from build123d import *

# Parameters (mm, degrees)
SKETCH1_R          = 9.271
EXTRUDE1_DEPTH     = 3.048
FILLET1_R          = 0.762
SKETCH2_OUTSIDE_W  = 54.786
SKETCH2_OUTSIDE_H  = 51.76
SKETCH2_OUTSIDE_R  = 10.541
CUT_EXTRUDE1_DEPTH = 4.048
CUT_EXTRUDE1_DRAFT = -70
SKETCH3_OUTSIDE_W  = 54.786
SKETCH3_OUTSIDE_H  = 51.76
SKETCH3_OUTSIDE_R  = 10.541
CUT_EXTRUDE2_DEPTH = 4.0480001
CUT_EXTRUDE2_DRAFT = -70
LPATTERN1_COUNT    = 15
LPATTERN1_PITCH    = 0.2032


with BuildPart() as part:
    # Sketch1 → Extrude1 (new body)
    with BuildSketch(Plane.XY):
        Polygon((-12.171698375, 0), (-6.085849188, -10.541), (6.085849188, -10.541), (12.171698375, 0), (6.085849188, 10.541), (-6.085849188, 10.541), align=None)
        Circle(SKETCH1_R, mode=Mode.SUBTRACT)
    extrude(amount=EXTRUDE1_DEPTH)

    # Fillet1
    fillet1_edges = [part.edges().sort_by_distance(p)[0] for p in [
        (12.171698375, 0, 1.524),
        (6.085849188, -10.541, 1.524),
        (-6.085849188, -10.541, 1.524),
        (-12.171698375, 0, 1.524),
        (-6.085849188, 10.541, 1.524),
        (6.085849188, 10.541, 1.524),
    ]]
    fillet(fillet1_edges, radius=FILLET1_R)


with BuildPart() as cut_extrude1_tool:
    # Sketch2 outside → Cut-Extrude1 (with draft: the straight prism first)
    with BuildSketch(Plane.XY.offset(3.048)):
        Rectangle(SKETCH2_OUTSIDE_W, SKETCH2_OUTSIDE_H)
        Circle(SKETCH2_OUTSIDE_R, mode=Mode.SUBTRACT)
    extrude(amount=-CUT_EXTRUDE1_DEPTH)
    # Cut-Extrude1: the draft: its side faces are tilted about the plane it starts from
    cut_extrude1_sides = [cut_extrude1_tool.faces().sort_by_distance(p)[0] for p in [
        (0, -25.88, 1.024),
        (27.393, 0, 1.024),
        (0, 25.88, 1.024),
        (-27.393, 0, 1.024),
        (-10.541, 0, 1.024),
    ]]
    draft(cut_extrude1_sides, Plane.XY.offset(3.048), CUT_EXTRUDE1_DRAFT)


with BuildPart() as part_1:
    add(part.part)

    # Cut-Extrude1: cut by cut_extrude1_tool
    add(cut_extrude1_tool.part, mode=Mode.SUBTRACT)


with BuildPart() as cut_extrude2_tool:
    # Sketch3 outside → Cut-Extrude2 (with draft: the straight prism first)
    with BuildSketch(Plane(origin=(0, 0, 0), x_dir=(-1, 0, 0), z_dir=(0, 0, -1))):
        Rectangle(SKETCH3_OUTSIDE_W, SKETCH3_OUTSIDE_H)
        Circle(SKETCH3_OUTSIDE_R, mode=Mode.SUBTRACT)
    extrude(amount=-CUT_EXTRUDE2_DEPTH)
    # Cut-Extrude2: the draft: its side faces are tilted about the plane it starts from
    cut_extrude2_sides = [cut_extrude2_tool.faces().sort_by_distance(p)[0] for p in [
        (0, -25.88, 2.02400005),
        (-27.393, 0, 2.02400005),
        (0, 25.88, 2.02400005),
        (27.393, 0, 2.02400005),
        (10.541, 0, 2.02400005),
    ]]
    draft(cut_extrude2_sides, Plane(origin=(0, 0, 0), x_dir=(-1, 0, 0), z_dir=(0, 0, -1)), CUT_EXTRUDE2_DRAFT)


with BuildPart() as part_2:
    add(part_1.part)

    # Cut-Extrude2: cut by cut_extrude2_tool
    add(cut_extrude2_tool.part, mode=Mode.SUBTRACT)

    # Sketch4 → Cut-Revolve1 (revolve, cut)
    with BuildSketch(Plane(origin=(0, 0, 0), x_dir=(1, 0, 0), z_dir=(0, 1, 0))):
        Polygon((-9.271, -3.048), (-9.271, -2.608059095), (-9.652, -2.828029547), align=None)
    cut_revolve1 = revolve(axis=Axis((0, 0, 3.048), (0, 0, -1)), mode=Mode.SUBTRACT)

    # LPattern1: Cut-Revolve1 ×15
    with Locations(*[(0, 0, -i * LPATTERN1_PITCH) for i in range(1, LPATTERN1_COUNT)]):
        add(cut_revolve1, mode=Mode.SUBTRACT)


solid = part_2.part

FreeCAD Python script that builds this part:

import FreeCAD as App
import Part
import Sketcher
Q = App.Units.Quantity


def edges_at(feature, points):
    """Names of the edges that pass closest to the given points."""
    edges = feature.Shape.Edges
    near = lambda p: min(range(len(edges)), key=lambda i: edges[i].distToShape(Part.Vertex(*p))[0])
    return sorted({f"Edge{near(p) + 1}" for p in points})


def faces_at(feature, points):
    """Names of the faces that lie closest to the given points."""
    faces = feature.Shape.Faces
    near = lambda p: min(range(len(faces)), key=lambda i: faces[i].distToShape(Part.Vertex(*p))[0])
    return sorted({f"Face{near(p) + 1}" for p in points})

doc = App.newDocument("Part")
body = doc.addObject("PartDesign::Body", "Body")

sketch1 = doc.addObject("Sketcher::SketchObject", "Sketch")
body.addObject(sketch1)
sketch1.AttachmentSupport = (doc.XY_Plane, [""])
sketch1.MapMode = "FlatFace"
sketch1.addGeometry([
    Part.LineSegment(App.Vector(-12.171698, 0, 0), App.Vector(-6.085849, -10.541, 0)),
    Part.LineSegment(App.Vector(-6.085849, -10.541, 0), App.Vector(6.085849, -10.541, 0)),
    Part.LineSegment(App.Vector(6.085849, -10.541, 0), App.Vector(12.171698, 0, 0)),
    Part.LineSegment(App.Vector(12.171698, 0, 0), App.Vector(6.085849, 10.541, 0)),
    Part.LineSegment(App.Vector(6.085849, 10.541, 0), App.Vector(-6.085849, 10.541, 0)),
    Part.LineSegment(App.Vector(-6.085849, 10.541, 0), App.Vector(-12.171698, 0, 0)),
    Part.Circle(App.Vector(0, 0, 0), App.Vector(0, 0, 1), 9.271),
], False)
sketch1.addConstraint([
    Sketcher.Constraint("Coincident", 0, 2, 1, 1),
    Sketcher.Constraint("Coincident", 1, 2, 2, 1),
    Sketcher.Constraint("Coincident", 2, 2, 3, 1),
    Sketcher.Constraint("Coincident", 3, 2, 4, 1),
    Sketcher.Constraint("Coincident", 4, 2, 5, 1),
    Sketcher.Constraint("Coincident", 5, 2, 0, 1),
    Sketcher.Constraint("Horizontal", 1),
    Sketcher.Constraint("Horizontal", 4),
    Sketcher.Constraint("Coincident", 6, 3, -1, 1),
    Sketcher.Constraint("Symmetric", 0, 2, 3, 2, -1, 1),
    Sketcher.Constraint("Symmetric", 2, 2, 5, 2, -1, 1),
    Sketcher.Constraint("PointOnObject", 2, 2, -1),
    Sketcher.Constraint("Parallel", 2, 5),
    Sketcher.Constraint("Vertical", 1, 2, 3, 2),
    Sketcher.Constraint("Diameter", 6, Q("0.73 in")),
    Sketcher.Constraint("Angle", 0, Q("-60 deg")),
    Sketcher.Constraint("DistanceY", 1, 2, 3, 2, Q("0.83 in")),
    Sketcher.Constraint("DistanceX", 1, 1, 1, 2, 12.171698),
])
pad1 = doc.addObject("PartDesign::Pad", "Pad")
body.addObject(pad1)
pad1.Profile = sketch1
pad1.Length = Q("0.12 in")
doc.recompute()

fillet = doc.addObject("PartDesign::Fillet", "Fillet")
body.addObject(fillet)
fillet.Base = (pad1, edges_at(pad1, [
    (12.172, 0, 1.524),
    (6.086, -10.541, 1.524),
    (-6.086, -10.541, 1.524),
    (-12.172, 0, 1.524),
    (-6.086, 10.541, 1.524),
    (6.086, 10.541, 1.524),
]))
fillet.Radius = Q("0.03 in")
body2 = doc.addObject("PartDesign::Body", "Body001")

sketch2 = doc.addObject("Sketcher::SketchObject", "Sketch001")
body2.addObject(sketch2)
sketch2.AttachmentSupport = (doc.getObject("XY_Plane001"), [""])
sketch2.MapMode = "FlatFace"
sketch2.AttachmentOffset = App.Placement(App.Vector(0, 0, 0.12 * 25.4), App.Rotation())
sketch2.addGeometry([
    Part.LineSegment(App.Vector(-27.393, 25.88, 0), App.Vector(-27.393, -25.88, 0)),
    Part.LineSegment(App.Vector(-27.393, -25.88, 0), App.Vector(27.393, -25.88, 0)),
    Part.LineSegment(App.Vector(27.393, -25.88, 0), App.Vector(27.393, 25.88, 0)),
    Part.LineSegment(App.Vector(27.393, 25.88, 0), App.Vector(-27.393, 25.88, 0)),
    Part.Circle(App.Vector(0, 0, 0), App.Vector(0, 0, 1), 10.541),
], False)
sketch2.addConstraint([
    Sketcher.Constraint("Coincident", 0, 2, 1, 1),
    Sketcher.Constraint("Coincident", 1, 2, 2, 1),
    Sketcher.Constraint("Coincident", 2, 2, 3, 1),
    Sketcher.Constraint("Coincident", 3, 2, 0, 1),
    Sketcher.Constraint("Vertical", 0),
    Sketcher.Constraint("Horizontal", 1),
    Sketcher.Constraint("Vertical", 2),
    Sketcher.Constraint("Horizontal", 3),
    Sketcher.Constraint("Coincident", 4, 3, -1, 1),
    Sketcher.Constraint("Symmetric", 0, 2, 2, 2, -1, 1),
    Sketcher.Constraint("Diameter", 4, Q("0.83 in")),
    Sketcher.Constraint("DistanceX", 1, 1, 1, 2, 54.786),
    Sketcher.Constraint("DistanceY", 0, 2, 0, 1, 51.76),
])
pad2 = doc.addObject("PartDesign::Pad", "Pad001")
body2.addObject(pad2)
pad2.Profile = sketch2
pad2.Length = 4.048
pad2.Reversed = True
doc.recompute()

datumplane = doc.addObject("PartDesign::Plane", "DatumPlane")
body2.addObject(datumplane)
datumplane.AttachmentSupport = (doc.getObject("XY_Plane001"), [""])
datumplane.MapMode = "FlatFace"
datumplane.AttachmentOffset = App.Placement(App.Vector(0, 0, 0.12 * 25.4), App.Rotation())
draft = doc.addObject("PartDesign::Draft", "Draft")
body2.addObject(draft)
draft.Base = (pad2, faces_at(pad2, [
    (0, -25.88, 1.024),
    (27.393, 0, 1.024),
    (0, 25.88, 1.024),
    (-27.393, 0, 1.024),
    (-10.541, 0, 1.024),
]))
draft.NeutralPlane = (datumplane, [""])
draft.Angle = 70
draft.Reversed = True
doc.recompute()

boolean = doc.addObject("PartDesign::Boolean", "Boolean")
body.addObject(boolean)
boolean.Type = "Cut"
boolean.addObjects([body2])
body3 = doc.addObject("PartDesign::Body", "Body002")

sketch3 = doc.addObject("Sketcher::SketchObject", "Sketch002")
body3.addObject(sketch3)
sketch3.AttachmentSupport = (doc.getObject("XY_Plane002"), [""])
sketch3.MapMode = "FlatFace"
sketch3.addGeometry([
    Part.LineSegment(App.Vector(27.393, 25.88, 0), App.Vector(27.393, -25.88, 0)),
    Part.LineSegment(App.Vector(27.393, -25.88, 0), App.Vector(-27.393, -25.88, 0)),
    Part.LineSegment(App.Vector(-27.393, -25.88, 0), App.Vector(-27.393, 25.88, 0)),
    Part.LineSegment(App.Vector(-27.393, 25.88, 0), App.Vector(27.393, 25.88, 0)),
    Part.Circle(App.Vector(0, 0, 0), App.Vector(0, 0, 1), 10.541),
], False)
sketch3.addConstraint([
    Sketcher.Constraint("Coincident", 0, 2, 1, 1),
    Sketcher.Constraint("Coincident", 1, 2, 2, 1),
    Sketcher.Constraint("Coincident", 2, 2, 3, 1),
    Sketcher.Constraint("Coincident", 3, 2, 0, 1),
    Sketcher.Constraint("Vertical", 0),
    Sketcher.Constraint("Horizontal", 1),
    Sketcher.Constraint("Vertical", 2),
    Sketcher.Constraint("Horizontal", 3),
    Sketcher.Constraint("Coincident", 4, 3, -1, 1),
    Sketcher.Constraint("Symmetric", 0, 2, 2, 2, -1, 1),
    Sketcher.Constraint("Diameter", 4, Q("0.83 in")),
    Sketcher.Constraint("DistanceX", 1, 2, 1, 1, 54.786),
    Sketcher.Constraint("DistanceY", 0, 2, 0, 1, 51.76),
])
pad3 = doc.addObject("PartDesign::Pad", "Pad002")
body3.addObject(pad3)
pad3.Profile = sketch3
pad3.Length = 4.048
doc.recompute()

draft2 = doc.addObject("PartDesign::Draft", "Draft001")
body3.addObject(draft2)
draft2.Base = (pad3, faces_at(pad3, [
    (0, -25.88, 2.024),
    (-27.393, 0, 2.024),
    (0, 25.88, 2.024),
    (27.393, 0, 2.024),
    (10.541, 0, 2.024),
]))
draft2.NeutralPlane = (doc.getObject("XY_Plane002"), [""])
draft2.Angle = 70
draft2.Reversed = False
doc.recompute()

boolean2 = doc.addObject("PartDesign::Boolean", "Boolean001")
body.addObject(boolean2)
boolean2.Type = "Cut"
boolean2.addObjects([body3])

sketch4 = doc.addObject("Sketcher::SketchObject", "Sketch003")
body.addObject(sketch4)
sketch4.AttachmentSupport = (doc.XZ_Plane, [""])
sketch4.MapMode = "FlatFace"
sketch4.addGeometry([
    Part.LineSegment(App.Vector(-9.271, 3.048, 0), App.Vector(-9.271, 2.608059, 0)),
    Part.LineSegment(App.Vector(-9.271, 2.608059, 0), App.Vector(-9.652, 2.82803, 0)),
    Part.LineSegment(App.Vector(-9.652, 2.82803, 0), App.Vector(-9.271, 3.048, 0)),
], False)
sketch4.addConstraint([
    Sketcher.Constraint("Coincident", 0, 2, 1, 1),
    Sketcher.Constraint("Coincident", 1, 2, 2, 1),
    Sketcher.Constraint("Coincident", 2, 2, 0, 1),
    Sketcher.Constraint("Vertical", 0),
    Sketcher.Constraint("Equal", 1, 2),
    Sketcher.Constraint("Angle", 1, Q("150 deg")),
    Sketcher.Constraint("DistanceX", 1, 2, -1, 1, Q("0.38 in")),
    Sketcher.Constraint("DistanceY", -1, 1, 2, 2, Q("0.12 in")),
    Sketcher.Constraint("DistanceX", 0, 2, -1, 1, Q("0.365 in")),
])
groove = doc.addObject("PartDesign::Groove", "Groove")
body.addObject(groove)
groove.Profile = sketch4
groove.ReferenceAxis = (sketch4, ["V_Axis"])
groove.Angle = 360
doc.recompute()

linearpattern = doc.addObject("PartDesign::LinearPattern", "LinearPattern")
body.addObject(linearpattern)
linearpattern.Originals = [groove]
linearpattern.Direction = (doc.Z_Axis, [""])
linearpattern.Mode = "offset"
linearpattern.Offset = Q("0.008 in")
linearpattern.Occurrences = 15
linearpattern.Reversed = True
body.Tip = linearpattern

doc.recompute()
